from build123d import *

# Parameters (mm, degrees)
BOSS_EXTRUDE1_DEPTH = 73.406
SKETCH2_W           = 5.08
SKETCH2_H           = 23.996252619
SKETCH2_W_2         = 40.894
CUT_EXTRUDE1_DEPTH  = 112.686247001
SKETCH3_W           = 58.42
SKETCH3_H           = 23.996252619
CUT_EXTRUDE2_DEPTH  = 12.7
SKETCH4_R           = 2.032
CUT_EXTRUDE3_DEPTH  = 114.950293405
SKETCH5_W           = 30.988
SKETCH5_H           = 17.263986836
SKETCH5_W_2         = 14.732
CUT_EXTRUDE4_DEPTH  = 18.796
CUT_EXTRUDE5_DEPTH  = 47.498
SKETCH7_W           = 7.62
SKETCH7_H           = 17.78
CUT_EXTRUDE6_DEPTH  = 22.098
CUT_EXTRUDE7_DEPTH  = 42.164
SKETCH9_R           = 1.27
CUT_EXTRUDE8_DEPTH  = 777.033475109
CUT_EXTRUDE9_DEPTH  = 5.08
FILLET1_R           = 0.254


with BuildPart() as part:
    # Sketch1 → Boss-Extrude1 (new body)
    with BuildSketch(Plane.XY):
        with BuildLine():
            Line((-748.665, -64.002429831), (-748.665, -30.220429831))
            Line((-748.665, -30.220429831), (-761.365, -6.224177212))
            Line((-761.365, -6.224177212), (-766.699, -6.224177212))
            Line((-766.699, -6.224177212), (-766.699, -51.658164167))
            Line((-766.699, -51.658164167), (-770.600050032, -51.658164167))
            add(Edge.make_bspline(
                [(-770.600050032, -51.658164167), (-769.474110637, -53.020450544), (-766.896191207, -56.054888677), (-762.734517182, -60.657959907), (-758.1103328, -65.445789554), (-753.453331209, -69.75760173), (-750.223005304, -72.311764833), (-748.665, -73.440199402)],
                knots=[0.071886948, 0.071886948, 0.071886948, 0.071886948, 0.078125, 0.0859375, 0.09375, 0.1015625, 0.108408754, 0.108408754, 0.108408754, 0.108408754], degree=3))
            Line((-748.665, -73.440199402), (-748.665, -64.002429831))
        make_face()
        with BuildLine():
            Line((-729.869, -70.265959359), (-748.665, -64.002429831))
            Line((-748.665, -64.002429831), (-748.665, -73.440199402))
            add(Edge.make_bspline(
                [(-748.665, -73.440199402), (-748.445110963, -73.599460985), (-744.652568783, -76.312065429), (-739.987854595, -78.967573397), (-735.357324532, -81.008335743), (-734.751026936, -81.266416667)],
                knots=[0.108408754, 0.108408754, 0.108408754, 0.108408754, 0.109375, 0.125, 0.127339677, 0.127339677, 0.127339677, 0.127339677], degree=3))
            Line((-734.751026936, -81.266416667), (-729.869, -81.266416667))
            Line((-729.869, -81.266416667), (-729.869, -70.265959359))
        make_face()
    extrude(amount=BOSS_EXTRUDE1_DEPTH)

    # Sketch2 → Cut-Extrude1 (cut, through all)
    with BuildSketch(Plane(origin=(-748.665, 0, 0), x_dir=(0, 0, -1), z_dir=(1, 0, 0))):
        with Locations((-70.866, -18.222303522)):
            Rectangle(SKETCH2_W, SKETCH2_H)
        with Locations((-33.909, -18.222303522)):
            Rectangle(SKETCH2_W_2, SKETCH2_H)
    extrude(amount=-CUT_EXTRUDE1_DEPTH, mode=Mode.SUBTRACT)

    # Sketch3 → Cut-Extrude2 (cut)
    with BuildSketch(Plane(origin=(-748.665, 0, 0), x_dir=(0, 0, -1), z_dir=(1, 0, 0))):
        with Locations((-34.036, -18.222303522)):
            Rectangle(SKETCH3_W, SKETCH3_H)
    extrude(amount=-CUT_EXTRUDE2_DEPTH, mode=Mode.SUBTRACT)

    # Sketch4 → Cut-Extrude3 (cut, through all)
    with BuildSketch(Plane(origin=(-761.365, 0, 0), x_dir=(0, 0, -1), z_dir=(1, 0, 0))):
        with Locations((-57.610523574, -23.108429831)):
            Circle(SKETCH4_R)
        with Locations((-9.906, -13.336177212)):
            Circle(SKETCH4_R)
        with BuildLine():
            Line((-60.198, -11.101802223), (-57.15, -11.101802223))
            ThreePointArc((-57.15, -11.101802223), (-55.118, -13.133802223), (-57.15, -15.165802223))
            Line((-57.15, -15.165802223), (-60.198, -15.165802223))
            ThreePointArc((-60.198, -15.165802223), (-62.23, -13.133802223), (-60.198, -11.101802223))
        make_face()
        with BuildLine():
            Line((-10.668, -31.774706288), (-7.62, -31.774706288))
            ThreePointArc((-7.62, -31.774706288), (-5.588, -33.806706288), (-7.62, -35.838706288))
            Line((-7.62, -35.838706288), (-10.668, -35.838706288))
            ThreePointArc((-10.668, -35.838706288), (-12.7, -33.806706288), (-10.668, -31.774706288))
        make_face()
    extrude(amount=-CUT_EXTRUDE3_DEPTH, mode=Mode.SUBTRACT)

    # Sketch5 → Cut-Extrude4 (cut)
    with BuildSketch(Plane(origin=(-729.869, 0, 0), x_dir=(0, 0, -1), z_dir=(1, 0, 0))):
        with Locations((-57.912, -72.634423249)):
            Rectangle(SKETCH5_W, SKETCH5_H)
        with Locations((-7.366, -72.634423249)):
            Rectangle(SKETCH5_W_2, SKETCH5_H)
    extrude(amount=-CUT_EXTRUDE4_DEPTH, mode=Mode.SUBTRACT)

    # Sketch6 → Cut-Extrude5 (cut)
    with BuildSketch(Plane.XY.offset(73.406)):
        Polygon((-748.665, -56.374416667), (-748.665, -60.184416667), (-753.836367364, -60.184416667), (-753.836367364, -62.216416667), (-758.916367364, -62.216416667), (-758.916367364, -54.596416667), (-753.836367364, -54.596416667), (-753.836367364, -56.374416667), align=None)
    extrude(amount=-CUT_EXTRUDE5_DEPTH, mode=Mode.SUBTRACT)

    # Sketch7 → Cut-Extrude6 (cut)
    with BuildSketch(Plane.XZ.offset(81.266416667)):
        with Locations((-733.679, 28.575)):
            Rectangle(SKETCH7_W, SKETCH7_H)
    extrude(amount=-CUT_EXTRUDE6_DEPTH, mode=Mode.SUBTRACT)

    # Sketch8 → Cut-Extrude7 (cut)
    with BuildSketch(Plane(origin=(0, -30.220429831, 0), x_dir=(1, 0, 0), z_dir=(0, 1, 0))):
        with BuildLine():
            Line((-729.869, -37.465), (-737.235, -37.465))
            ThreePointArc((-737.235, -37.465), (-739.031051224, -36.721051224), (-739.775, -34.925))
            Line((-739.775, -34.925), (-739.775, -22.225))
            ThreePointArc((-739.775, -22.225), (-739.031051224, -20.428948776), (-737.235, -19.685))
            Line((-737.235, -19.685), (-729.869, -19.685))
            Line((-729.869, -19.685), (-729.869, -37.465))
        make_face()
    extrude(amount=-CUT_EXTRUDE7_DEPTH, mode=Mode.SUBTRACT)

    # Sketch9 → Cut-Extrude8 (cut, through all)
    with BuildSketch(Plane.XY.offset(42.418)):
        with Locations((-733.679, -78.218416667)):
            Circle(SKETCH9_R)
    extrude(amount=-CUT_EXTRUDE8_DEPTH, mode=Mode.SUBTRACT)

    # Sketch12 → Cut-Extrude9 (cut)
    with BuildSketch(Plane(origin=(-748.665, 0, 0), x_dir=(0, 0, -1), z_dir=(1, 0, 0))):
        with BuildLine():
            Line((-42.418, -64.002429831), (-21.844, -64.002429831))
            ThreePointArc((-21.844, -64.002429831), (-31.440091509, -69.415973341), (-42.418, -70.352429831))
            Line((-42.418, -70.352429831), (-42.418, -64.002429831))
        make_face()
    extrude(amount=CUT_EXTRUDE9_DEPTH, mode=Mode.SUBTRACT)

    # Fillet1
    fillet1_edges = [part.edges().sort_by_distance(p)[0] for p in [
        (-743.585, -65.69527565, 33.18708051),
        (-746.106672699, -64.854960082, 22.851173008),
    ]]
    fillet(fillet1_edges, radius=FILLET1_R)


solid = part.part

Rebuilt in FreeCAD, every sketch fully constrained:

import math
import FreeCAD as App
import Part
import Sketcher
from FreeCAD import Vector
Q = App.Units.Quantity


def edges_at(feature, points):
    """Names of the edges that pass closest to the given points."""
    edges = feature.Shape.Edges
    near = lambda p: min(range(len(edges)), key=lambda i: edges[i].distToShape(Part.Vertex(*p))[0])
    return sorted({f"Edge{near(p) + 1}" for p in points})

doc = App.newDocument("Part")
body = doc.addObject("PartDesign::Body", "Body")

sketch1 = doc.addObject("Sketcher::SketchObject", "Sketch")
body.addObject(sketch1)
sketch1.AttachmentSupport = (doc.XY_Plane, [""])
sketch1.MapMode = "FlatFace"
sketch1.addGeometry(Part.LineSegment(Vector(-748.665, -30.22043, 0), Vector(-761.365, -6.224177, 0)), False)
sketch1.addGeometry(Part.LineSegment(Vector(-761.365, -6.224177, 0), Vector(-766.699, -6.224177, 0)), False)
sketch1.addGeometry(Part.LineSegment(Vector(-766.699, -6.224177, 0), Vector(-766.699, -51.658164, 0)), False)
sketch1.addGeometry(Part.LineSegment(Vector(-766.699, -51.658164, 0), Vector(-770.60005, -51.658164, 0)), False)
sketch1.addGeometry(Part.BSplineCurve([Vector(-770.60005, -51.658164, 0), Vector(-769.474111, -53.020451, 0), Vector(-766.896191, -56.054889, 0), Vector(-762.734517, -60.65796, 0), Vector(-758.110333, -65.44579, 0), Vector(-753.453331, -69.757602, 0), Vector(-750.223005, -72.311765, 0), Vector(-748.665, -73.440199, 0)], [4, 1, 1, 1, 1, 4], [0.071886948, 0.078125, 0.0859375, 0.09375, 0.1015625, 0.108408754], False, 3, [1, 1, 1, 1, 1, 1, 1, 1], False), False)
sketch1.addGeometry(Part.BSplineCurve([Vector(-748.665, -73.440199, 0), Vector(-748.445111, -73.599461, 0), Vector(-744.652569, -76.312065, 0), Vector(-739.987855, -78.967573, 0), Vector(-735.357325, -81.008336, 0), Vector(-734.751027, -81.266417, 0)], [4, 1, 1, 4], [0.108408754, 0.109375, 0.125, 0.127339677], False, 3, [1, 1, 1, 1, 1, 1], False), False)
sketch1.addGeometry(Part.LineSegment(Vector(-734.751027, -81.266417, 0), Vector(-729.869, -81.266417, 0)), False)
sketch1.addGeometry(Part.LineSegment(Vector(-729.869, -81.266417, 0), Vector(-729.869, -70.265959, 0)), False)
sketch1.addGeometry(Part.LineSegment(Vector(-729.869, -70.265959, 0), Vector(-748.665, -64.00243, 0)), False)
sketch1.addGeometry(Part.LineSegment(Vector(-748.665, -64.00243, 0), Vector(-748.665, -30.22043, 0)), False)
sketch1.addConstraint(Sketcher.Constraint("Block", 4))
sketch1.addConstraint(Sketcher.Constraint("Block", 5))
sketch1.addConstraint(Sketcher.Constraint("Coincident", 0, 2, 1, 1))
sketch1.addConstraint(Sketcher.Constraint("Coincident", 1, 2, 2, 1))
sketch1.addConstraint(Sketcher.Constraint("Coincident", 2, 2, 3, 1))
sketch1.addConstraint(Sketcher.Constraint("Coincident", 3, 2, 4, 1))
sketch1.addConstraint(Sketcher.Constraint("Coincident", 5, 2, 6, 1))
sketch1.addConstraint(Sketcher.Constraint("Coincident", 6, 2, 7, 1))
sketch1.addConstraint(Sketcher.Constraint("Coincident", 7, 2, 8, 1))
sketch1.addConstraint(Sketcher.Constraint("Coincident", 8, 2, 9, 1))
sketch1.addConstraint(Sketcher.Constraint("Coincident", 9, 2, 0, 1))
sketch1.addConstraint(Sketcher.Constraint("Horizontal", 1))
sketch1.addConstraint(Sketcher.Constraint("Vertical", 2))
sketch1.addConstraint(Sketcher.Constraint("Horizontal", 3))
sketch1.addConstraint(Sketcher.Constraint("Horizontal", 6))
sketch1.addConstraint(Sketcher.Constraint("Vertical", 7))
sketch1.addConstraint(Sketcher.Constraint("Vertical", 9))
sketch1.addConstraint(Sketcher.Constraint("DistanceX", 1, 2, 1, 1, Q("0.21 in")))
sketch1.addConstraint(Sketcher.Constraint("DistanceY", 9, 1, 9, 2, Q("1.33 in")))
sketch1.addConstraint(Sketcher.Constraint("DistanceX", 0, 2, 8, 2, Q("0.5 in")))
sketch1.addConstraint(Sketcher.Constraint("Angle", 0, Q("117.89 deg")))
sketch1.addConstraint(Sketcher.Constraint("Angle", 8, Q("161.57 deg")))
sketch1.addConstraint(Sketcher.Constraint("DistanceX", 2, 2, 6, 2, Q("1.45 in")))
sketch1.addConstraint(Sketcher.Constraint("DistanceX", 0, 2, -1, 1, Q("29.975 in")))
sketch1.addConstraint(Sketcher.Constraint("DistanceY", 2, 2, 2, 1, 45.433987))
pad1 = doc.addObject("PartDesign::Pad", "Pad")
body.addObject(pad1)
pad1.Profile = sketch1
pad1.Length = Q("2.89 in")

sketch2 = doc.addObject("Sketcher::SketchObject", "Sketch001")
body.addObject(sketch2)
sketch2.AttachmentSupport = (doc.YZ_Plane, [""])
sketch2.MapMode = "FlatFace"
sketch2.AttachmentOffset = App.Placement(Vector(0, 0, -29.475 * 25.4), App.Rotation())
sketch2.addGeometry(Part.LineSegment(Vector(-6.224177, 73.406, 0), Vector(-30.22043, 73.406, 0)), False)
sketch2.addGeometry(Part.LineSegment(Vector(-30.22043, 73.406, 0), Vector(-30.22043, 68.326, 0)), False)
sketch2.addGeometry(Part.LineSegment(Vector(-30.22043, 68.326, 0), Vector(-6.224177, 68.326, 0)), False)
sketch2.addGeometry(Part.LineSegment(Vector(-6.224177, 68.326, 0), Vector(-6.224177, 73.406, 0)), False)
sketch2.addGeometry(Part.LineSegment(Vector(-6.224177, 54.356, 0), Vector(-30.22043, 54.356, 0)), False)
sketch2.addGeometry(Part.LineSegment(Vector(-30.22043, 54.356, 0), Vector(-30.22043, 13.462, 0)), False)
sketch2.addGeometry(Part.LineSegment(Vector(-30.22043, 13.462, 0), Vector(-6.224177, 13.462, 0)), False)
sketch2.addGeometry(Part.LineSegment(Vector(-6.224177, 13.462, 0), Vector(-6.224177, 54.356, 0)), False)
sketch2.addConstraint(Sketcher.Constraint("Coincident", 0, 2, 1, 1))
sketch2.addConstraint(Sketcher.Constraint("Coincident", 1, 2, 2, 1))
sketch2.addConstraint(Sketcher.Constraint("Coincident", 2, 2, 3, 1))
sketch2.addConstraint(Sketcher.Constraint("Coincident", 3, 2, 0, 1))
sketch2.addConstraint(Sketcher.Constraint("Coincident", 4, 2, 5, 1))
sketch2.addConstraint(Sketcher.Constraint("Coincident", 5, 2, 6, 1))
sketch2.addConstraint(Sketcher.Constraint("Coincident", 6, 2, 7, 1))
sketch2.addConstraint(Sketcher.Constraint("Coincident", 7, 2, 4, 1))
sketch2.addConstraint(Sketcher.Constraint("Horizontal", 0))
sketch2.addConstraint(Sketcher.Constraint("Vertical", 1))
sketch2.addConstraint(Sketcher.Constraint("Horizontal", 2))
sketch2.addConstraint(Sketcher.Constraint("Vertical", 3))
sketch2.addConstraint(Sketcher.Constraint("Horizontal", 4))
sketch2.addConstraint(Sketcher.Constraint("Vertical", 5))
sketch2.addConstraint(Sketcher.Constraint("Horizontal", 6))
sketch2.addConstraint(Sketcher.Constraint("Vertical", 7))
sketch2.addConstraint(Sketcher.Constraint("Vertical", 1, 2, 4, 2))
sketch2.addConstraint(Sketcher.Constraint("Vertical", 3, 2, 6, 2))
sketch2.addConstraint(Sketcher.Constraint("DistanceY", 1, 2, 1, 1, Q("0.2 in")))
sketch2.addConstraint(Sketcher.Constraint("DistanceY", 5, 2, 5, 1, Q("1.61 in")))
sketch2.addConstraint(Sketcher.Constraint("DistanceY", -1, 1, 0, 2, Q("2.89 in")))
sketch2.addConstraint(Sketcher.Constraint("DistanceY", -1, 1, 4, 2, Q("2.14 in")))
sketch2.addConstraint(Sketcher.Constraint("DistanceX", 0, 2, 0, 1, 23.996253))
sketch2.addConstraint(Sketcher.Constraint("DistanceX", 0, 2, -1, 1, 30.22043))
pocket1 = doc.addObject("PartDesign::Pocket", "Pocket")
body.addObject(pocket1)
pocket1.Profile = sketch2
pocket1.Type = "ThroughAll"

sketch3 = doc.addObject("Sketcher::SketchObject", "Sketch002")
body.addObject(sketch3)
sketch3.AttachmentSupport = (doc.YZ_Plane, [""])
sketch3.MapMode = "FlatFace"
sketch3.AttachmentOffset = App.Placement(Vector(0, 0, -29.475 * 25.4), App.Rotation())
sketch3.addGeometry(Part.LineSegment(Vector(-6.224177, 63.246, 0), Vector(-30.22043, 63.246, 0)), False)
sketch3.addGeometry(Part.LineSegment(Vector(-30.22043, 63.246, 0), Vector(-30.22043, 4.826, 0)), False)
sketch3.addGeometry(Part.LineSegment(Vector(-30.22043, 4.826, 0), Vector(-6.224177, 4.826, 0)), False)
sketch3.addGeometry(Part.LineSegment(Vector(-6.224177, 4.826, 0), Vector(-6.224177, 63.246, 0)), False)
sketch3.addConstraint(Sketcher.Constraint("Coincident", 0, 2, 1, 1))
sketch3.addConstraint(Sketcher.Constraint("Coincident", 1, 2, 2, 1))
sketch3.addConstraint(Sketcher.Constraint("Coincident", 2, 2, 3, 1))
sketch3.addConstraint(Sketcher.Constraint("Coincident", 3, 2, 0, 1))
sketch3.addConstraint(Sketcher.Constraint("Horizontal", 0))
sketch3.addConstraint(Sketcher.Constraint("Vertical", 1))
sketch3.addConstraint(Sketcher.Constraint("Horizontal", 2))
sketch3.addConstraint(Sketcher.Constraint("Vertical", 3))
sketch3.addConstraint(Sketcher.Constraint("DistanceY", 1, 2, 1, 1, Q("2.3 in")))
sketch3.addConstraint(Sketcher.Constraint("DistanceY", -1, 1, 0, 2, Q("2.49 in")))
sketch3.addConstraint(Sketcher.Constraint("DistanceX", 0, 2, 0, 1, 23.996253))
sketch3.addConstraint(Sketcher.Constraint("DistanceX", 0, 2, -1, 1, 30.22043))
pocket2 = doc.addObject("PartDesign::Pocket", "Pocket001")
body.addObject(pocket2)
pocket2.Profile = sketch3
pocket2.Length = Q("0.5 in")

sketch4 = doc.addObject("Sketcher::SketchObject", "Sketch003")
body.addObject(sketch4)
sketch4.AttachmentSupport = (doc.YZ_Plane, [""])
sketch4.MapMode = "FlatFace"
sketch4.AttachmentOffset = App.Placement(Vector(0, 0, -29.975 * 25.4), App.Rotation())
sketch4.addGeometry(Part.Circle(Vector(-23.10843, 57.610524, 0), Vector(0, 0, 1), 2.032), False)
sketch4.addGeometry(Part.Circle(Vector(-13.336177, 9.906, 0), Vector(0, 0, 1), 2.032), False)
sketch4.addGeometry(Part.LineSegment(Vector(-11.101802, 57.15, 0), Vector(-11.101802, 60.198, 0)), False)
sketch4.addGeometry(Part.ArcOfCircle(Part.Circle(Vector(-13.133802, 60.198, 0), Vector(0, 0, 1), 2.032), math.radians(0), math.radians(180)), False)
sketch4.addGeometry(Part.LineSegment(Vector(-15.165802, 60.198, 0), Vector(-15.165802, 57.15, 0)), False)
sketch4.addGeometry(Part.ArcOfCircle(Part.Circle(Vector(-13.133802, 57.15, 0), Vector(0, 0, 1), 2.032), math.radians(180), math.radians(360)), False)
sketch4.addGeometry(Part.LineSegment(Vector(-31.774706, 7.62, 0), Vector(-31.774706, 10.668, 0)), False)
sketch4.addGeometry(Part.ArcOfCircle(Part.Circle(Vector(-33.806706, 10.668, 0), Vector(0, 0, 1), 2.032), math.radians(0), math.radians(180)), False)
sketch4.addGeometry(Part.LineSegment(Vector(-35.838706, 10.668, 0), Vector(-35.838706, 7.62, 0)), False)
sketch4.addGeometry(Part.ArcOfCircle(Part.Circle(Vector(-33.806706, 7.62, 0), Vector(0, 0, 1), 2.032), math.radians(180), math.radians(360)), False)
sketch4.addConstraint(Sketcher.Constraint("Tangent", 2, 2, 3, 1))
sketch4.addConstraint(Sketcher.Constraint("Tangent", 3, 2, 4, 1))
sketch4.addConstraint(Sketcher.Constraint("Tangent", 4, 2, 5, 1))
sketch4.addConstraint(Sketcher.Constraint("Tangent", 5, 2, 2, 1))
sketch4.addConstraint(Sketcher.Constraint("Tangent", 6, 2, 7, 1))
sketch4.addConstraint(Sketcher.Constraint("Tangent", 7, 2, 8, 1))
sketch4.addConstraint(Sketcher.Constraint("Tangent", 8, 2, 9, 1))
sketch4.addConstraint(Sketcher.Constraint("Tangent", 9, 2, 6, 1))
sketch4.addConstraint(Sketcher.Constraint("Vertical", 2))
sketch4.addConstraint(Sketcher.Constraint("Vertical", 4))
sketch4.addConstraint(Sketcher.Constraint("Vertical", 6))
sketch4.addConstraint(Sketcher.Constraint("Vertical", 8))
sketch4.addConstraint(Sketcher.Constraint("Equal", 0, 1))
sketch4.addConstraint(Sketcher.Constraint("Equal", 1, 3))
sketch4.addConstraint(Sketcher.Constraint("Equal", 5, 7))
sketch4.addConstraint(Sketcher.Constraint("Equal", 4, 6))
sketch4.addConstraint(Sketcher.Constraint("Diameter", 0, Q("0.16 in")))
sketch4.addConstraint(Sketcher.Constraint("DistanceY", 2, 1, 2, 2, Q("0.12 in")))
sketch4.addConstraint(Sketcher.Constraint("DistanceY", -1, 1, 9, 3, Q("0.3 in")))
sketch4.addConstraint(Sketcher.Constraint("DistanceY", -1, 1, 1, 3, Q("0.39 in")))
sketch4.addConstraint(Sketcher.Constraint("DistanceY", -1, 1, 3, 3, Q("2.37 in")))
sketch4.addConstraint(Sketcher.Constraint("DistanceX", 0, 3, -1, 1, 23.10843))
sketch4.addConstraint(Sketcher.Constraint("DistanceX", 7, 3, 1, 3, 20.470529))
sketch4.addConstraint(Sketcher.Constraint("DistanceY", -1, 1, 0, 3, 57.610524))
sketch4.addConstraint(Sketcher.Constraint("DistanceX", 1, 3, -1, 1, 13.336177))
sketch4.addConstraint(Sketcher.Constraint("DistanceX", 3, 3, -1, 1, 13.133802))
pocket3 = doc.addObject("PartDesign::Pocket", "Pocket002")
body.addObject(pocket3)
pocket3.Profile = sketch4
pocket3.Type = "ThroughAll"

sketch5 = doc.addObject("Sketcher::SketchObject", "Sketch004")
body.addObject(sketch5)
sketch5.AttachmentSupport = (doc.YZ_Plane, [""])
sketch5.MapMode = "FlatFace"
sketch5.AttachmentOffset = App.Placement(Vector(0, 0, -28.735 * 25.4), App.Rotation())
sketch5.addGeometry(Part.LineSegment(Vector(-64.00243, 73.406, 0), Vector(-81.266417, 73.406, 0)), False)
sketch5.addGeometry(Part.LineSegment(Vector(-81.266417, 73.406, 0), Vector(-81.266417, 42.418, 0)), False)
sketch5.addGeometry(Part.LineSegment(Vector(-81.266417, 42.418, 0), Vector(-64.00243, 42.418, 0)), False)
sketch5.addGeometry(Part.LineSegment(Vector(-64.00243, 42.418, 0), Vector(-64.00243, 73.406, 0)), False)
sketch5.addGeometry(Part.LineSegment(Vector(-64.00243, 14.732, 0), Vector(-81.266417, 14.732, 0)), False)
sketch5.addGeometry(Part.LineSegment(Vector(-81.266417, 14.732, 0), Vector(-81.266417, 0, 0)), False)
sketch5.addGeometry(Part.LineSegment(Vector(-81.266417, 0, 0), Vector(-64.00243, 0, 0)), False)
sketch5.addGeometry(Part.LineSegment(Vector(-64.00243, 0, 0), Vector(-64.00243, 14.732, 0)), False)
sketch5.addConstraint(Sketcher.Constraint("Coincident", 0, 2, 1, 1))
sketch5.addConstraint(Sketcher.Constraint("Coincident", 1, 2, 2, 1))
sketch5.addConstraint(Sketcher.Constraint("Coincident", 2, 2, 3, 1))
sketch5.addConstraint(Sketcher.Constraint("Coincident", 3, 2, 0, 1))
sketch5.addConstraint(Sketcher.Constraint("Coincident", 4, 2, 5, 1))
sketch5.addConstraint(Sketcher.Constraint("Coincident", 5, 2, 6, 1))
sketch5.addConstraint(Sketcher.Constraint("Coincident", 6, 2, 7, 1))
sketch5.addConstraint(Sketcher.Constraint("Coincident", 7, 2, 4, 1))
sketch5.addConstraint(Sketcher.Constraint("Horizontal", 0))
sketch5.addConstraint(Sketcher.Constraint("Vertical", 1))
sketch5.addConstraint(Sketcher.Constraint("Horizontal", 2))
sketch5.addConstraint(Sketcher.Constraint("Vertical", 3))
sketch5.addConstraint(Sketcher.Constraint("Horizontal", 4))
sketch5.addConstraint(Sketcher.Constraint("Vertical", 5))
sketch5.addConstraint(Sketcher.Constraint("Horizontal", 6))
sketch5.addConstraint(Sketcher.Constraint("Vertical", 7))
sketch5.addConstraint(Sketcher.Constraint("PointOnObject", 5, 2, -1))
sketch5.addConstraint(Sketcher.Constraint("Vertical", 1, 2, 4, 2))
sketch5.addConstraint(Sketcher.Constraint("Vertical", 3, 2, 6, 2))
sketch5.addConstraint(Sketcher.Constraint("DistanceY", 1, 2, 1, 1, Q("1.22 in")))
sketch5.addConstraint(Sketcher.Constraint("DistanceY", 5, 2, 5, 1, Q("0.58 in")))
sketch5.addConstraint(Sketcher.Constraint("DistanceY", -1, 1, 0, 2, Q("2.89 in")))
sketch5.addConstraint(Sketcher.Constraint("DistanceX", 0, 2, 0, 1, 17.263987))
sketch5.addConstraint(Sketcher.Constraint("DistanceX", 2, 2, -1, 1, 64.00243))
pocket4 = doc.addObject("PartDesign::Pocket", "Pocket003")
body.addObject(pocket4)
pocket4.Profile = sketch5
pocket4.Length = Q("0.74 in")

sketch6 = doc.addObject("Sketcher::SketchObject", "Sketch005")
body.addObject(sketch6)
sketch6.AttachmentSupport = (doc.XY_Plane, [""])
sketch6.MapMode = "FlatFace"
sketch6.AttachmentOffset = App.Placement(Vector(0, 0, 2.89 * 25.4), App.Rotation())
sketch6.addGeometry(Part.LineSegment(Vector(-748.665, -60.184417, 0), Vector(-748.665, -56.374417, 0)), False)
sketch6.addGeometry(Part.LineSegment(Vector(-748.665, -56.374417, 0), Vector(-753.836367, -56.374417, 0)), False)
sketch6.addGeometry(Part.LineSegment(Vector(-753.836367, -56.374417, 0), Vector(-753.836367, -54.596417, 0)), False)
sketch6.addGeometry(Part.LineSegment(Vector(-753.836367, -54.596417, 0), Vector(-758.916367, -54.596417, 0)), False)
sketch6.addGeometry(Part.LineSegment(Vector(-758.916367, -54.596417, 0), Vector(-758.916367, -62.216417, 0)), False)
sketch6.addGeometry(Part.LineSegment(Vector(-758.916367, -62.216417, 0), Vector(-753.836367, -62.216417, 0)), False)
sketch6.addGeometry(Part.LineSegment(Vector(-753.836367, -62.216417, 0), Vector(-753.836367, -60.184417, 0)), False)
sketch6.addGeometry(Part.LineSegment(Vector(-753.836367, -60.184417, 0), Vector(-748.665, -60.184417, 0)), False)
sketch6.addConstraint(Sketcher.Constraint("Coincident", 0, 2, 1, 1))
sketch6.addConstraint(Sketcher.Constraint("Coincident", 1, 2, 2, 1))
sketch6.addConstraint(Sketcher.Constraint("Coincident", 2, 2, 3, 1))
sketch6.addConstraint(Sketcher.Constraint("Coincident", 3, 2, 4, 1))
sketch6.addConstraint(Sketcher.Constraint("Coincident", 4, 2, 5, 1))
sketch6.addConstraint(Sketcher.Constraint("Coincident", 5, 2, 6, 1))
sketch6.addConstraint(Sketcher.Constraint("Coincident", 6, 2, 7, 1))
sketch6.addConstraint(Sketcher.Constraint("Coincident", 7, 2, 0, 1))
sketch6.addConstraint(Sketcher.Constraint("Vertical", 0))
sketch6.addConstraint(Sketcher.Constraint("Horizontal", 1))
sketch6.addConstraint(Sketcher.Constraint("Vertical", 2))
sketch6.addConstraint(Sketcher.Constraint("Horizontal", 3))
sketch6.addConstraint(Sketcher.Constraint("Vertical", 4))
sketch6.addConstraint(Sketcher.Constraint("Horizontal", 5))
sketch6.addConstraint(Sketcher.Constraint("Vertical", 6))
sketch6.addConstraint(Sketcher.Constraint("Horizontal", 7))
sketch6.addConstraint(Sketcher.Constraint("Vertical", 2, 2, 5, 2))
sketch6.addConstraint(Sketcher.Constraint("DistanceX", 3, 2, 3, 1, Q("0.2 in")))
sketch6.addConstraint(Sketcher.Constraint("DistanceY", 4, 2, 4, 1, Q("0.3 in")))
sketch6.addConstraint(Sketcher.Constraint("DistanceY", 0, 1, 0, 2, Q("0.15 in")))
sketch6.addConstraint(Sketcher.Constraint("DistanceY", 2, 1, 2, 2, Q("0.07 in")))
sketch6.addConstraint(Sketcher.Constraint("DistanceX", 0, 2, -1, 1, Q("29.475 in")))
sketch6.addConstraint(Sketcher.Constraint("DistanceX", 1, 2, 1, 1, 5.171367))
sketch6.addConstraint(Sketcher.Constraint("DistanceY", 0, 2, -1, 1, 56.374417))
pocket5 = doc.addObject("PartDesign::Pocket", "Pocket004")
body.addObject(pocket5)
pocket5.Profile = sketch6
pocket5.Length = Q("1.87 in")

sketch7 = doc.addObject("Sketcher::SketchObject", "Sketch006")
body.addObject(sketch7)
sketch7.AttachmentSupport = (doc.XZ_Plane, [""])
sketch7.MapMode = "FlatFace"
sketch7.AttachmentOffset = App.Placement(Vector(0, 0, 81.266417), App.Rotation())
sketch7.addGeometry(Part.LineSegment(Vector(-737.489, 37.465, 0), Vector(-737.489, 19.685, 0)), False)
sketch7.addGeometry(Part.LineSegment(Vector(-737.489, 19.685, 0), Vector(-729.869, 19.685, 0)), False)
sketch7.addGeometry(Part.LineSegment(Vector(-729.869, 19.685, 0), Vector(-729.869, 37.465, 0)), False)
sketch7.addGeometry(Part.LineSegment(Vector(-729.869, 37.465, 0), Vector(-737.489, 37.465, 0)), False)
sketch7.addConstraint(Sketcher.Constraint("Coincident", 0, 2, 1, 1))
sketch7.addConstraint(Sketcher.Constraint("Coincident", 1, 2, 2, 1))
sketch7.addConstraint(Sketcher.Constraint("Coincident", 2, 2, 3, 1))
sketch7.addConstraint(Sketcher.Constraint("Coincident", 3, 2, 0, 1))
sketch7.addConstraint(Sketcher.Constraint("Vertical", 0))
sketch7.addConstraint(Sketcher.Constraint("Horizontal", 1))
sketch7.addConstraint(Sketcher.Constraint("Vertical", 2))
sketch7.addConstraint(Sketcher.Constraint("Horizontal", 3))
sketch7.addConstraint(Sketcher.Constraint("DistanceX", 1, 1, 1, 2, Q("0.3 in")))
sketch7.addConstraint(Sketcher.Constraint("DistanceY", 0, 2, 0, 1, Q("0.7 in")))
sketch7.addConstraint(Sketcher.Constraint("DistanceX", 0, 2, -1, 1, Q("29.035 in")))
sketch7.addConstraint(Sketcher.Constraint("DistanceY", -1, 1, 0, 2, Q("0.775 in")))
pocket6 = doc.addObject("PartDesign::Pocket", "Pocket005")
body.addObject(pocket6)
pocket6.Profile = sketch7
pocket6.Length = Q("0.87 in")

sketch8 = doc.addObject("Sketcher::SketchObject", "Sketch007")
body.addObject(sketch8)
sketch8.AttachmentSupport = (doc.XZ_Plane, [""])
sketch8.MapMode = "FlatFace"
sketch8.AttachmentOffset = App.Placement(Vector(0, 0, 30.22043), App.Rotation())
sketch8.addGeometry(Part.LineSegment(Vector(-737.235, 37.465, 0), Vector(-729.869, 37.465, 0)), False)
sketch8.addGeometry(Part.LineSegment(Vector(-729.869, 37.465, 0), Vector(-729.869, 19.685, 0)), False)
sketch8.addGeometry(Part.LineSegment(Vector(-729.869, 19.685, 0), Vector(-737.235, 19.685, 0)), False)
sketch8.addGeometry(Part.ArcOfCircle(Part.Circle(Vector(-737.235, 22.225, 0), Vector(0, 0, 1), 2.54), math.radians(-180), math.radians(-90)), False)
sketch8.addGeometry(Part.LineSegment(Vector(-739.775, 22.225, 0), Vector(-739.775, 34.925, 0)), False)
sketch8.addGeometry(Part.ArcOfCircle(Part.Circle(Vector(-737.235, 34.925, 0), Vector(0, 0, 1), 2.54), math.radians(90), math.radians(180)), False)
sketch8.addConstraint(Sketcher.Constraint("Coincident", 0, 2, 1, 1))
sketch8.addConstraint(Sketcher.Constraint("Coincident", 1, 2, 2, 1))
sketch8.addConstraint(Sketcher.Constraint("Tangent", 2, 2, 3, 2))
sketch8.addConstraint(Sketcher.Constraint("Tangent", 3, 1, 4, 1))
sketch8.addConstraint(Sketcher.Constraint("Tangent", 4, 2, 5, 2))
sketch8.addConstraint(Sketcher.Constraint("Tangent", 5, 1, 0, 1))
sketch8.addConstraint(Sketcher.Constraint("Horizontal", 0))
sketch8.addConstraint(Sketcher.Constraint("Vertical", 1))
sketch8.addConstraint(Sketcher.Constraint("Horizontal", 2))
sketch8.addConstraint(Sketcher.Constraint("Vertical", 4))
sketch8.addConstraint(Sketcher.Constraint("Equal", 3, 5))
sketch8.addConstraint(Sketcher.Constraint("Radius", 3, Q("0.1 in")))
sketch8.addConstraint(Sketcher.Constraint("DistanceY", 1, 2, 1, 1, Q("0.7 in")))
sketch8.addConstraint(Sketcher.Constraint("DistanceX", 0, 1, 0, 2, Q("0.29 in")))
sketch8.addConstraint(Sketcher.Constraint("DistanceX", 3, 3, -1, 1, Q("29.025 in")))
sketch8.addConstraint(Sketcher.Constraint("DistanceY", -1, 1, 3, 3, Q("0.875 in")))
pocket7 = doc.addObject("PartDesign::Pocket", "Pocket006")
body.addObject(pocket7)
pocket7.Profile = sketch8
pocket7.Length = Q("1.66 in")
pocket7.Reversed = True

sketch9 = doc.addObject("Sketcher::SketchObject", "Sketch008")
body.addObject(sketch9)
sketch9.AttachmentSupport = (doc.XY_Plane, [""])
sketch9.MapMode = "FlatFace"
sketch9.AttachmentOffset = App.Placement(Vector(0, 0, 1.67 * 25.4), App.Rotation())
sketch9.addGeometry(Part.Circle(Vector(-733.679, -78.218417, 0), Vector(0, 0, 1), 1.27), False)
sketch9.addConstraint(Sketcher.Constraint("Diameter", 0, Q("0.1 in")))
sketch9.addConstraint(Sketcher.Constraint("DistanceX", 0, 3, -1, 1, Q("28.885 in")))
sketch9.addConstraint(Sketcher.Constraint("DistanceY", 0, 3, -1, 1, 78.218417))
pocket8 = doc.addObject("PartDesign::Pocket", "Pocket007")
body.addObject(pocket8)
pocket8.Profile = sketch9
pocket8.Type = "ThroughAll"

sketch10 = doc.addObject("Sketcher::SketchObject", "Sketch009")
body.addObject(sketch10)
sketch10.AttachmentSupport = (doc.YZ_Plane, [""])
sketch10.MapMode = "FlatFace"
sketch10.AttachmentOffset = App.Placement(Vector(0, 0, -29.475 * 25.4), App.Rotation())
sketch10.addGeometry(Part.LineSegment(Vector(-64.00243, 21.844, 0), Vector(-64.00243, 42.418, 0)), False)
sketch10.addGeometry(Part.LineSegment(Vector(-64.00243, 42.418, 0), Vector(-70.35243, 42.418, 0)), False)
sketch10.addGeometry(Part.ArcOfCircle(Part.Circle(Vector(-44.660268, 39.080741, 0), Vector(0, 0, 1), 25.908), math.radians(172.599058), math.radians(221.705786)), False)
sketch10.addConstraint(Sketcher.Constraint("Coincident", 0, 2, 1, 1))
sketch10.addConstraint(Sketcher.Constraint("Coincident", 1, 2, 2, 1))
sketch10.addConstraint(Sketcher.Constraint("Coincident", 2, 2, 0, 1))
sketch10.addConstraint(Sketcher.Constraint("Vertical", 0))
sketch10.addConstraint(Sketcher.Constraint("Horizontal", 1))
sketch10.addConstraint(Sketcher.Constraint("Radius", 2, Q("1.02 in")))
sketch10.addConstraint(Sketcher.Constraint("DistanceX", 1, 2, 1, 1, Q("0.25 in")))
sketch10.addConstraint(Sketcher.Constraint("DistanceY", 0, 1, 0, 2, Q("0.81 in")))
sketch10.addConstraint(Sketcher.Constraint("DistanceY", -1, 1, 0, 2, Q("1.67 in")))
sketch10.addConstraint(Sketcher.Constraint("DistanceX", 2, 3, -1, 1, 44.660268))
pocket9 = doc.addObject("PartDesign::Pocket", "Pocket008")
body.addObject(pocket9)
pocket9.Profile = sketch10
pocket9.Length = Q("0.2 in")
pocket9.Reversed = True
doc.recompute()

fillet = doc.addObject("PartDesign::Fillet", "Fillet")
body.addObject(fillet)
fillet.Base = (pocket9, edges_at(pocket9, [(-743.585, -65.695, 33.187), (-746.107, -64.855, 22.851)]))
fillet.Radius = Q("0.01 in")

doc.recompute()
